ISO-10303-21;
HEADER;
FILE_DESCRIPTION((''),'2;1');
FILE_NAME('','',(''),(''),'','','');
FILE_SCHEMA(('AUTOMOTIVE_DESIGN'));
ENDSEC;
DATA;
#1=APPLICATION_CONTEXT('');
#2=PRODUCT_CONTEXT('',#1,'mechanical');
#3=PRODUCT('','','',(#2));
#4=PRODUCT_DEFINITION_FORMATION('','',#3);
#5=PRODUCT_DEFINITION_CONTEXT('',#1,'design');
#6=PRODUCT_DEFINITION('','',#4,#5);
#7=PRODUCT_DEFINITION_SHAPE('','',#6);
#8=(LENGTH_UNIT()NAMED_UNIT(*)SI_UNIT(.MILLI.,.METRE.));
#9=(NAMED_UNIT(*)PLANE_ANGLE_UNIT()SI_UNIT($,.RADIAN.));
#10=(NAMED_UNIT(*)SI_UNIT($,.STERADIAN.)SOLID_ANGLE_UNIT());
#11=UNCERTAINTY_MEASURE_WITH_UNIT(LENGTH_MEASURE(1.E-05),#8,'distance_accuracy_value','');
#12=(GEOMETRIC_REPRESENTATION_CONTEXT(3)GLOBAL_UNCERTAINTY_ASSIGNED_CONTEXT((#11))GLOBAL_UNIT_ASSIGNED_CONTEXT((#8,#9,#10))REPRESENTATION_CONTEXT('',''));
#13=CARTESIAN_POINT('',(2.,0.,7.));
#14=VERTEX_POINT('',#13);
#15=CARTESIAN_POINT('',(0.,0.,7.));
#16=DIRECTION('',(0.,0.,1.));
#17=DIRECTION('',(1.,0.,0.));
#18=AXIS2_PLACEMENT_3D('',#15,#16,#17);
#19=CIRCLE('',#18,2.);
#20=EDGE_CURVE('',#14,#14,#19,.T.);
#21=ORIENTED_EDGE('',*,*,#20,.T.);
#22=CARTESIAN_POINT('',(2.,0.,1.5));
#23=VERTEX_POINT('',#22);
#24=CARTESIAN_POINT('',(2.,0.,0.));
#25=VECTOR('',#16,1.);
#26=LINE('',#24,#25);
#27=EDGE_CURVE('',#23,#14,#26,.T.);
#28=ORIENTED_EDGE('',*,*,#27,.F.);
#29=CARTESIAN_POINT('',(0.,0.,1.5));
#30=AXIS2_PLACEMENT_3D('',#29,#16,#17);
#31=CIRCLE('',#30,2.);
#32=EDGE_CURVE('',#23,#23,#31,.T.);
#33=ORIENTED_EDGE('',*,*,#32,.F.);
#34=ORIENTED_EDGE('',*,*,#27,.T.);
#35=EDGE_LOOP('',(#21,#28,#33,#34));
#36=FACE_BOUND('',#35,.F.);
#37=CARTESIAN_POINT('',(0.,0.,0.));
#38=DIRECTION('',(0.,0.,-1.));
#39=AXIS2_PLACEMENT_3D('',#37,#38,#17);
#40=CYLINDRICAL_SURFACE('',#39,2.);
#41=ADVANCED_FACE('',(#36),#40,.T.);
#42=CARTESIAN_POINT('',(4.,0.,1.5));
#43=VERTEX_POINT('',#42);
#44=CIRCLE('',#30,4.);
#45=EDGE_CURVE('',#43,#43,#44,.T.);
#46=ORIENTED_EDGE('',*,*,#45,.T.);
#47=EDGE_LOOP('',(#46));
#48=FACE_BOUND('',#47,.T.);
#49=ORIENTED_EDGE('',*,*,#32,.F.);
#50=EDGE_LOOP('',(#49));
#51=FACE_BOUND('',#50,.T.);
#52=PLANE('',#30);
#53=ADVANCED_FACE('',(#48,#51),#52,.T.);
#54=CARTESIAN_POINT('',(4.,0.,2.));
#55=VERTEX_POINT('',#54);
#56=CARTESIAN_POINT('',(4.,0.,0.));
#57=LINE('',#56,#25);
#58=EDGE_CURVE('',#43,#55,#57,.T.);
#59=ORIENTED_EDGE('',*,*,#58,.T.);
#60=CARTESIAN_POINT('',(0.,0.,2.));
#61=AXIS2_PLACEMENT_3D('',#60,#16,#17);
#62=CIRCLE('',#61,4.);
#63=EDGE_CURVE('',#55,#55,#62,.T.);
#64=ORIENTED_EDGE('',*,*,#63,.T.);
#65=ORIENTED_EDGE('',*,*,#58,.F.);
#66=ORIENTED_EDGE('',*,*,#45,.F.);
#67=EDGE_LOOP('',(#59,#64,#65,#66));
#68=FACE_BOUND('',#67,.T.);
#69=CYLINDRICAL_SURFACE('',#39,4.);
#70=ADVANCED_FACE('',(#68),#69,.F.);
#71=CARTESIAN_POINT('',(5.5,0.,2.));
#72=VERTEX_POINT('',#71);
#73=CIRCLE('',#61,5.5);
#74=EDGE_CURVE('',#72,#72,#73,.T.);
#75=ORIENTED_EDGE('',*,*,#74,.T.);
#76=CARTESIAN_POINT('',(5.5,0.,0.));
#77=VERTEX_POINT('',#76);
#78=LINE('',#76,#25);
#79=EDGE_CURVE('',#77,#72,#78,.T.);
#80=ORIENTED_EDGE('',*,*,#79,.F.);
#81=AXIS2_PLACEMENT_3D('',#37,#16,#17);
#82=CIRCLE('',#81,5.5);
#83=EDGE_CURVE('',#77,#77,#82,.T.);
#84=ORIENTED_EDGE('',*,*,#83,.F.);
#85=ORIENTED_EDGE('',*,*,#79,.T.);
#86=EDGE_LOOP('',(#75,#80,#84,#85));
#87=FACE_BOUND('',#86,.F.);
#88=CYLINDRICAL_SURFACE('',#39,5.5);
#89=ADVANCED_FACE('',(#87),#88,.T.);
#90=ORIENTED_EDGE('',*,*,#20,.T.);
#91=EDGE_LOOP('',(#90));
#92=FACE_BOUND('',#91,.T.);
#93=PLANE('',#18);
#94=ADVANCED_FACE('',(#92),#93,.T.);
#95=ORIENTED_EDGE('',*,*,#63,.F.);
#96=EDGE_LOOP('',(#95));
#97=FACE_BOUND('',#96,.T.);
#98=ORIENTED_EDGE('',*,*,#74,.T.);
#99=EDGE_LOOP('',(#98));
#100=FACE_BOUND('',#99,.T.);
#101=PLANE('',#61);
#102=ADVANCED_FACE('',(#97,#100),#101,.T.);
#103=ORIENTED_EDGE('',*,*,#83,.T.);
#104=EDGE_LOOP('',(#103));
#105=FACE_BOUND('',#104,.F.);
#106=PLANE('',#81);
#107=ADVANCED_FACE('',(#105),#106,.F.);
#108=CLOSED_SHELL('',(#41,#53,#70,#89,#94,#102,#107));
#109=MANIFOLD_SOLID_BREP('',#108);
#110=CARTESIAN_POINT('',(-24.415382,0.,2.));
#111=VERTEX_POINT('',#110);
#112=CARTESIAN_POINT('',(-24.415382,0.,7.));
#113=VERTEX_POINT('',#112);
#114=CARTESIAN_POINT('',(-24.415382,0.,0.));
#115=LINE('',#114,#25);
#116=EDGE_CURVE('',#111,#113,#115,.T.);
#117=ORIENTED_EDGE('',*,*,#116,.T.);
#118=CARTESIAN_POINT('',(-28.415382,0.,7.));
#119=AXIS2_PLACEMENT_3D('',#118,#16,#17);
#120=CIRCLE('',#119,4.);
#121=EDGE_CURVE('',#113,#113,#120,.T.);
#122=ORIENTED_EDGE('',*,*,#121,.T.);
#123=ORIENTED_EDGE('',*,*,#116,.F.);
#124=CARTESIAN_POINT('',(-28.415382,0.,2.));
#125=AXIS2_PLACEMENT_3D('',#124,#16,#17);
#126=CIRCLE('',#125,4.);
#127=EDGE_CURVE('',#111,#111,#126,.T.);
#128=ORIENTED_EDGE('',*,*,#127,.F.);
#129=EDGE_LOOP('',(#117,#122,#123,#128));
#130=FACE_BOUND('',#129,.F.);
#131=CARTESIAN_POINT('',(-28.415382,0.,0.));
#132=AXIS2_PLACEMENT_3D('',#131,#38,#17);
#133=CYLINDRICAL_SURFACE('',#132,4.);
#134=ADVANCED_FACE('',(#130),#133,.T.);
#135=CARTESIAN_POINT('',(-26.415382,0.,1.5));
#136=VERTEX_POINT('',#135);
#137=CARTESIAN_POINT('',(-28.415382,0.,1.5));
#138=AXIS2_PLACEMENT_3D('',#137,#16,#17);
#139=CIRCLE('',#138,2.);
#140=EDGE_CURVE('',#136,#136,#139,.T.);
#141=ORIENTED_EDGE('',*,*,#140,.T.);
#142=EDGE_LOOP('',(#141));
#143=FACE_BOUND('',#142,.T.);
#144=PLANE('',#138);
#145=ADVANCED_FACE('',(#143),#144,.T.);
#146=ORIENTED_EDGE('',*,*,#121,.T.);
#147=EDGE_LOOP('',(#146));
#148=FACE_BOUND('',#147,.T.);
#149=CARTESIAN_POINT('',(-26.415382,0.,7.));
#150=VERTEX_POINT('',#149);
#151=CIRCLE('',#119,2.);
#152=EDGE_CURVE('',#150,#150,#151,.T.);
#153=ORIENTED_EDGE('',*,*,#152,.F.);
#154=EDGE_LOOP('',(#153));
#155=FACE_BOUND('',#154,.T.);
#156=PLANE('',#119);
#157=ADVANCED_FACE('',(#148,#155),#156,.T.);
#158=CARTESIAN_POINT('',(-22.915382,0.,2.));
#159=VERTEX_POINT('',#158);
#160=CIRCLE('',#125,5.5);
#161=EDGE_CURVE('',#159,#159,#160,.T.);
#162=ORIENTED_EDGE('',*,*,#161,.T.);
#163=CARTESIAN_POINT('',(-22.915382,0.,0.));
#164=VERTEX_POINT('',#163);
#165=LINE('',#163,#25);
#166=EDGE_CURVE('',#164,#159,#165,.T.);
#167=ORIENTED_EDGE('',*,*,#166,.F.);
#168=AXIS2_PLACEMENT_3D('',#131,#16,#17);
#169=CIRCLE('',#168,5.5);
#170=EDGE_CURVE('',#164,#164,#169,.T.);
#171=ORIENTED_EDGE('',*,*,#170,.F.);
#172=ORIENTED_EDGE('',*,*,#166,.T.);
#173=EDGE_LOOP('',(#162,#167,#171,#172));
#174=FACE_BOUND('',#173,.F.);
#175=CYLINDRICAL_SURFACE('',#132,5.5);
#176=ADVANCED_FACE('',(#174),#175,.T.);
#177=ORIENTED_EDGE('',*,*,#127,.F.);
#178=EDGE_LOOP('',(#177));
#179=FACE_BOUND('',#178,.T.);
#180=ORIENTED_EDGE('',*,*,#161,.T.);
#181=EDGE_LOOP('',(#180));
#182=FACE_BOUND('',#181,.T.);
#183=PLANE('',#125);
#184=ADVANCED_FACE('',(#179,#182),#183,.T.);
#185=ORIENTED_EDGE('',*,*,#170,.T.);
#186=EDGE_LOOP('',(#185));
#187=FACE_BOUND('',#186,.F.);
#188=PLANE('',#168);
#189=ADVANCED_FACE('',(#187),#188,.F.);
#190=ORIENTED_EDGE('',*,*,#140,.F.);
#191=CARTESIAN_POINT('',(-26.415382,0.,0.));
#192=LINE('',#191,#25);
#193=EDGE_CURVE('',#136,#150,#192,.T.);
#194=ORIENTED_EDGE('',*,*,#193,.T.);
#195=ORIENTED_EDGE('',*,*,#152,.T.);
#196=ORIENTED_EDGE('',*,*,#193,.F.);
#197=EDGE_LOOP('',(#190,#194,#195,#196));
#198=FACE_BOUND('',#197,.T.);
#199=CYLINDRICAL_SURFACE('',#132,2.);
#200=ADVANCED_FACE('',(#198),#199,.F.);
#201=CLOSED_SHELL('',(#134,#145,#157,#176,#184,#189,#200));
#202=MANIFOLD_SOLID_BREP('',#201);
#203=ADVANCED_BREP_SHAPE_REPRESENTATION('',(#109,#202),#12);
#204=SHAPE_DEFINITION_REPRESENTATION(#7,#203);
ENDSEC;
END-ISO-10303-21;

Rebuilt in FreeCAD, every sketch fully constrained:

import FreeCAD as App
import Part
import Sketcher

doc = App.newDocument("Part")
params = doc.addObject("Spreadsheet::Sheet", "Params")
for row, (alias, value) in enumerate([
    ("sketch1_diameter", "11 mm"),
    ("sketch1_diameter2", "8 mm"),
    ("pad1_length", "2 mm"),
    ("sketch2_diameter", "11 mm"),
    ("sketch2_diameter2", "8 mm"),
    ("pad2_length", "2 mm"),
    ("sketch3_diameter", "8 mm"),
    ("sketch3_diameter2", "4 mm"),
    ("pad3_length", "7 mm"),
    ("sketch4_diameter", "4 mm"),
    ("pad4_length", "1.5 mm"),
    ("sketch5_diameter", "4 mm"),
    ("pad5_length", "7 mm"),
    ("sketch6_diameter", "8 mm"),
    ("sketch6_diameter2", "4 mm"),
    ("pad6_length", "1.5 mm"),
], start=1):
    params.set(f"A{row}", alias)
    params.set(f"B{row}", "=" + value)
    params.setAlias(f"B{row}", alias)

body = doc.addObject("PartDesign::Body", "Body")

# Sketch on XY plane
sketch1 = body.newObject("Sketcher::SketchObject", "Sketch")
sketch1.AttachmentSupport = (doc.getObject("XY_Plane"), [""])
sketch1.MapMode = "FlatFace"
sketch1.addGeometry([
    Part.Circle(App.Vector(0, 0, 0), App.Vector(0, 0, 1), 5.5),
    Part.Circle(App.Vector(0, 0, 0), App.Vector(0, 0, 1), 4),
], False)
sketch1.addConstraint([
    Sketcher.Constraint("Coincident", 0, 3, -1, 1),
    Sketcher.Constraint("Coincident", 1, 3, -1, 1),
    Sketcher.Constraint("Diameter", 0, 11.0),
    Sketcher.Constraint("Diameter", 1, 8.0),
])
sketch1.setExpression("Constraints[2]", "Params.sketch1_diameter")
sketch1.setExpression("Constraints[3]", "Params.sketch1_diameter2")
pad1 = body.newObject("PartDesign::Pad", "Pad")
pad1.Profile = sketch1
pad1.setExpression("Length", "Params.pad1_length")
body2 = doc.addObject("PartDesign::Body", "Body001")

# Sketch on XY plane
sketch2 = body2.newObject("Sketcher::SketchObject", "Sketch001")
sketch2.AttachmentSupport = (doc.getObject("XY_Plane001"), [""])
sketch2.MapMode = "FlatFace"
sketch2.addGeometry([
    Part.Circle(App.Vector(-28.4, 0, 0), App.Vector(0, 0, 1), 5.5),
    Part.Circle(App.Vector(-28.4, 0, 0), App.Vector(0, 0, 1), 4),
], False)
sketch2.addConstraint([
    Sketcher.Constraint("Coincident", 1, 3, 0, 3),
    Sketcher.Constraint("PointOnObject", 0, 3, -1),
    Sketcher.Constraint("Diameter", 0, 11.0),
    Sketcher.Constraint("Diameter", 1, 8.0),
    Sketcher.Constraint("DistanceX", 0, 3, -1, 1, 28.415382),
])
sketch2.setExpression("Constraints[2]", "Params.sketch2_diameter")
sketch2.setExpression("Constraints[3]", "Params.sketch2_diameter2")
pad2 = body2.newObject("PartDesign::Pad", "Pad001")
pad2.Profile = sketch2
pad2.setExpression("Length", "Params.pad2_length")

# Sketch on XY plane
sketch3 = body2.newObject("Sketcher::SketchObject", "Sketch002")
sketch3.AttachmentSupport = (doc.getObject("XY_Plane001"), [""])
sketch3.MapMode = "FlatFace"
sketch3.addGeometry([
    Part.Circle(App.Vector(-28.4, 0, 0), App.Vector(0, 0, 1), 4),
    Part.Circle(App.Vector(-28.4, 0, 0), App.Vector(0, 0, 1), 2),
], False)
sketch3.addConstraint([
    Sketcher.Constraint("Coincident", 1, 3, 0, 3),
    Sketcher.Constraint("PointOnObject", 0, 3, -1),
    Sketcher.Constraint("Diameter", 0, 8.0),
    Sketcher.Constraint("Diameter", 1, 4.0),
    Sketcher.Constraint("DistanceX", 0, 3, -1, 1, 28.415382),
])
sketch3.setExpression("Constraints[2]", "Params.sketch3_diameter")
sketch3.setExpression("Constraints[3]", "Params.sketch3_diameter2")
pad3 = body2.newObject("PartDesign::Pad", "Pad002")
pad3.Profile = sketch3
pad3.setExpression("Length", "Params.pad3_length")

# Sketch on XY plane
sketch4 = body2.newObject("Sketcher::SketchObject", "Sketch003")
sketch4.AttachmentSupport = (doc.getObject("XY_Plane001"), [""])
sketch4.MapMode = "FlatFace"
sketch4.addGeometry(Part.Circle(App.Vector(-28.4, 0, 0), App.Vector(0, 0, 1), 2), False)
sketch4.addConstraint([
    Sketcher.Constraint("PointOnObject", 0, 3, -1),
    Sketcher.Constraint("Diameter", 0, 4.0),
    Sketcher.Constraint("DistanceX", 0, 3, -1, 1, 28.415382),
])
sketch4.setExpression("Constraints[1]", "Params.sketch4_diameter")
pad4 = body2.newObject("PartDesign::Pad", "Pad003")
pad4.Profile = sketch4
pad4.setExpression("Length", "Params.pad4_length")
body3 = doc.addObject("PartDesign::Body", "Body002")

# Sketch on XY plane
sketch5 = body3.newObject("Sketcher::SketchObject", "Sketch004")
sketch5.AttachmentSupport = (doc.getObject("XY_Plane002"), [""])
sketch5.MapMode = "FlatFace"
sketch5.addGeometry(Part.Circle(App.Vector(0, 0, 0), App.Vector(0, 0, 1), 2), False)
sketch5.addConstraint([
    Sketcher.Constraint("Coincident", 0, 3, -1, 1),
    Sketcher.Constraint("Diameter", 0, 4.0),
])
sketch5.setExpression("Constraints[1]", "Params.sketch5_diameter")
pad5 = body3.newObject("PartDesign::Pad", "Pad004")
pad5.Profile = sketch5
pad5.setExpression("Length", "Params.pad5_length")
body.AllowCompound = True
doc.recompute()

boolean = body.newObject("PartDesign::Boolean", "Boolean")
boolean.Type = "Fuse"
boolean.addObjects([body3])

# Sketch on XY plane
sketch6 = body.newObject("Sketcher::SketchObject", "Sketch005")
sketch6.AttachmentSupport = (doc.getObject("XY_Plane"), [""])
sketch6.MapMode = "FlatFace"
sketch6.addGeometry([
    Part.Circle(App.Vector(0, 0, 0), App.Vector(0, 0, 1), 4),
    Part.Circle(App.Vector(0, 0, 0), App.Vector(0, 0, 1), 2),
], False)
sketch6.addConstraint([
    Sketcher.Constraint("Coincident", 0, 3, -1, 1),
    Sketcher.Constraint("Coincident", 1, 3, -1, 1),
    Sketcher.Constraint("Diameter", 0, 8.0),
    Sketcher.Constraint("Diameter", 1, 4.0),
])
sketch6.setExpression("Constraints[2]", "Params.sketch6_diameter")
sketch6.setExpression("Constraints[3]", "Params.sketch6_diameter2")
pad6 = body.newObject("PartDesign::Pad", "Pad005")
pad6.Profile = sketch6
pad6.setExpression("Length", "Params.pad6_length")

doc.recompute()
